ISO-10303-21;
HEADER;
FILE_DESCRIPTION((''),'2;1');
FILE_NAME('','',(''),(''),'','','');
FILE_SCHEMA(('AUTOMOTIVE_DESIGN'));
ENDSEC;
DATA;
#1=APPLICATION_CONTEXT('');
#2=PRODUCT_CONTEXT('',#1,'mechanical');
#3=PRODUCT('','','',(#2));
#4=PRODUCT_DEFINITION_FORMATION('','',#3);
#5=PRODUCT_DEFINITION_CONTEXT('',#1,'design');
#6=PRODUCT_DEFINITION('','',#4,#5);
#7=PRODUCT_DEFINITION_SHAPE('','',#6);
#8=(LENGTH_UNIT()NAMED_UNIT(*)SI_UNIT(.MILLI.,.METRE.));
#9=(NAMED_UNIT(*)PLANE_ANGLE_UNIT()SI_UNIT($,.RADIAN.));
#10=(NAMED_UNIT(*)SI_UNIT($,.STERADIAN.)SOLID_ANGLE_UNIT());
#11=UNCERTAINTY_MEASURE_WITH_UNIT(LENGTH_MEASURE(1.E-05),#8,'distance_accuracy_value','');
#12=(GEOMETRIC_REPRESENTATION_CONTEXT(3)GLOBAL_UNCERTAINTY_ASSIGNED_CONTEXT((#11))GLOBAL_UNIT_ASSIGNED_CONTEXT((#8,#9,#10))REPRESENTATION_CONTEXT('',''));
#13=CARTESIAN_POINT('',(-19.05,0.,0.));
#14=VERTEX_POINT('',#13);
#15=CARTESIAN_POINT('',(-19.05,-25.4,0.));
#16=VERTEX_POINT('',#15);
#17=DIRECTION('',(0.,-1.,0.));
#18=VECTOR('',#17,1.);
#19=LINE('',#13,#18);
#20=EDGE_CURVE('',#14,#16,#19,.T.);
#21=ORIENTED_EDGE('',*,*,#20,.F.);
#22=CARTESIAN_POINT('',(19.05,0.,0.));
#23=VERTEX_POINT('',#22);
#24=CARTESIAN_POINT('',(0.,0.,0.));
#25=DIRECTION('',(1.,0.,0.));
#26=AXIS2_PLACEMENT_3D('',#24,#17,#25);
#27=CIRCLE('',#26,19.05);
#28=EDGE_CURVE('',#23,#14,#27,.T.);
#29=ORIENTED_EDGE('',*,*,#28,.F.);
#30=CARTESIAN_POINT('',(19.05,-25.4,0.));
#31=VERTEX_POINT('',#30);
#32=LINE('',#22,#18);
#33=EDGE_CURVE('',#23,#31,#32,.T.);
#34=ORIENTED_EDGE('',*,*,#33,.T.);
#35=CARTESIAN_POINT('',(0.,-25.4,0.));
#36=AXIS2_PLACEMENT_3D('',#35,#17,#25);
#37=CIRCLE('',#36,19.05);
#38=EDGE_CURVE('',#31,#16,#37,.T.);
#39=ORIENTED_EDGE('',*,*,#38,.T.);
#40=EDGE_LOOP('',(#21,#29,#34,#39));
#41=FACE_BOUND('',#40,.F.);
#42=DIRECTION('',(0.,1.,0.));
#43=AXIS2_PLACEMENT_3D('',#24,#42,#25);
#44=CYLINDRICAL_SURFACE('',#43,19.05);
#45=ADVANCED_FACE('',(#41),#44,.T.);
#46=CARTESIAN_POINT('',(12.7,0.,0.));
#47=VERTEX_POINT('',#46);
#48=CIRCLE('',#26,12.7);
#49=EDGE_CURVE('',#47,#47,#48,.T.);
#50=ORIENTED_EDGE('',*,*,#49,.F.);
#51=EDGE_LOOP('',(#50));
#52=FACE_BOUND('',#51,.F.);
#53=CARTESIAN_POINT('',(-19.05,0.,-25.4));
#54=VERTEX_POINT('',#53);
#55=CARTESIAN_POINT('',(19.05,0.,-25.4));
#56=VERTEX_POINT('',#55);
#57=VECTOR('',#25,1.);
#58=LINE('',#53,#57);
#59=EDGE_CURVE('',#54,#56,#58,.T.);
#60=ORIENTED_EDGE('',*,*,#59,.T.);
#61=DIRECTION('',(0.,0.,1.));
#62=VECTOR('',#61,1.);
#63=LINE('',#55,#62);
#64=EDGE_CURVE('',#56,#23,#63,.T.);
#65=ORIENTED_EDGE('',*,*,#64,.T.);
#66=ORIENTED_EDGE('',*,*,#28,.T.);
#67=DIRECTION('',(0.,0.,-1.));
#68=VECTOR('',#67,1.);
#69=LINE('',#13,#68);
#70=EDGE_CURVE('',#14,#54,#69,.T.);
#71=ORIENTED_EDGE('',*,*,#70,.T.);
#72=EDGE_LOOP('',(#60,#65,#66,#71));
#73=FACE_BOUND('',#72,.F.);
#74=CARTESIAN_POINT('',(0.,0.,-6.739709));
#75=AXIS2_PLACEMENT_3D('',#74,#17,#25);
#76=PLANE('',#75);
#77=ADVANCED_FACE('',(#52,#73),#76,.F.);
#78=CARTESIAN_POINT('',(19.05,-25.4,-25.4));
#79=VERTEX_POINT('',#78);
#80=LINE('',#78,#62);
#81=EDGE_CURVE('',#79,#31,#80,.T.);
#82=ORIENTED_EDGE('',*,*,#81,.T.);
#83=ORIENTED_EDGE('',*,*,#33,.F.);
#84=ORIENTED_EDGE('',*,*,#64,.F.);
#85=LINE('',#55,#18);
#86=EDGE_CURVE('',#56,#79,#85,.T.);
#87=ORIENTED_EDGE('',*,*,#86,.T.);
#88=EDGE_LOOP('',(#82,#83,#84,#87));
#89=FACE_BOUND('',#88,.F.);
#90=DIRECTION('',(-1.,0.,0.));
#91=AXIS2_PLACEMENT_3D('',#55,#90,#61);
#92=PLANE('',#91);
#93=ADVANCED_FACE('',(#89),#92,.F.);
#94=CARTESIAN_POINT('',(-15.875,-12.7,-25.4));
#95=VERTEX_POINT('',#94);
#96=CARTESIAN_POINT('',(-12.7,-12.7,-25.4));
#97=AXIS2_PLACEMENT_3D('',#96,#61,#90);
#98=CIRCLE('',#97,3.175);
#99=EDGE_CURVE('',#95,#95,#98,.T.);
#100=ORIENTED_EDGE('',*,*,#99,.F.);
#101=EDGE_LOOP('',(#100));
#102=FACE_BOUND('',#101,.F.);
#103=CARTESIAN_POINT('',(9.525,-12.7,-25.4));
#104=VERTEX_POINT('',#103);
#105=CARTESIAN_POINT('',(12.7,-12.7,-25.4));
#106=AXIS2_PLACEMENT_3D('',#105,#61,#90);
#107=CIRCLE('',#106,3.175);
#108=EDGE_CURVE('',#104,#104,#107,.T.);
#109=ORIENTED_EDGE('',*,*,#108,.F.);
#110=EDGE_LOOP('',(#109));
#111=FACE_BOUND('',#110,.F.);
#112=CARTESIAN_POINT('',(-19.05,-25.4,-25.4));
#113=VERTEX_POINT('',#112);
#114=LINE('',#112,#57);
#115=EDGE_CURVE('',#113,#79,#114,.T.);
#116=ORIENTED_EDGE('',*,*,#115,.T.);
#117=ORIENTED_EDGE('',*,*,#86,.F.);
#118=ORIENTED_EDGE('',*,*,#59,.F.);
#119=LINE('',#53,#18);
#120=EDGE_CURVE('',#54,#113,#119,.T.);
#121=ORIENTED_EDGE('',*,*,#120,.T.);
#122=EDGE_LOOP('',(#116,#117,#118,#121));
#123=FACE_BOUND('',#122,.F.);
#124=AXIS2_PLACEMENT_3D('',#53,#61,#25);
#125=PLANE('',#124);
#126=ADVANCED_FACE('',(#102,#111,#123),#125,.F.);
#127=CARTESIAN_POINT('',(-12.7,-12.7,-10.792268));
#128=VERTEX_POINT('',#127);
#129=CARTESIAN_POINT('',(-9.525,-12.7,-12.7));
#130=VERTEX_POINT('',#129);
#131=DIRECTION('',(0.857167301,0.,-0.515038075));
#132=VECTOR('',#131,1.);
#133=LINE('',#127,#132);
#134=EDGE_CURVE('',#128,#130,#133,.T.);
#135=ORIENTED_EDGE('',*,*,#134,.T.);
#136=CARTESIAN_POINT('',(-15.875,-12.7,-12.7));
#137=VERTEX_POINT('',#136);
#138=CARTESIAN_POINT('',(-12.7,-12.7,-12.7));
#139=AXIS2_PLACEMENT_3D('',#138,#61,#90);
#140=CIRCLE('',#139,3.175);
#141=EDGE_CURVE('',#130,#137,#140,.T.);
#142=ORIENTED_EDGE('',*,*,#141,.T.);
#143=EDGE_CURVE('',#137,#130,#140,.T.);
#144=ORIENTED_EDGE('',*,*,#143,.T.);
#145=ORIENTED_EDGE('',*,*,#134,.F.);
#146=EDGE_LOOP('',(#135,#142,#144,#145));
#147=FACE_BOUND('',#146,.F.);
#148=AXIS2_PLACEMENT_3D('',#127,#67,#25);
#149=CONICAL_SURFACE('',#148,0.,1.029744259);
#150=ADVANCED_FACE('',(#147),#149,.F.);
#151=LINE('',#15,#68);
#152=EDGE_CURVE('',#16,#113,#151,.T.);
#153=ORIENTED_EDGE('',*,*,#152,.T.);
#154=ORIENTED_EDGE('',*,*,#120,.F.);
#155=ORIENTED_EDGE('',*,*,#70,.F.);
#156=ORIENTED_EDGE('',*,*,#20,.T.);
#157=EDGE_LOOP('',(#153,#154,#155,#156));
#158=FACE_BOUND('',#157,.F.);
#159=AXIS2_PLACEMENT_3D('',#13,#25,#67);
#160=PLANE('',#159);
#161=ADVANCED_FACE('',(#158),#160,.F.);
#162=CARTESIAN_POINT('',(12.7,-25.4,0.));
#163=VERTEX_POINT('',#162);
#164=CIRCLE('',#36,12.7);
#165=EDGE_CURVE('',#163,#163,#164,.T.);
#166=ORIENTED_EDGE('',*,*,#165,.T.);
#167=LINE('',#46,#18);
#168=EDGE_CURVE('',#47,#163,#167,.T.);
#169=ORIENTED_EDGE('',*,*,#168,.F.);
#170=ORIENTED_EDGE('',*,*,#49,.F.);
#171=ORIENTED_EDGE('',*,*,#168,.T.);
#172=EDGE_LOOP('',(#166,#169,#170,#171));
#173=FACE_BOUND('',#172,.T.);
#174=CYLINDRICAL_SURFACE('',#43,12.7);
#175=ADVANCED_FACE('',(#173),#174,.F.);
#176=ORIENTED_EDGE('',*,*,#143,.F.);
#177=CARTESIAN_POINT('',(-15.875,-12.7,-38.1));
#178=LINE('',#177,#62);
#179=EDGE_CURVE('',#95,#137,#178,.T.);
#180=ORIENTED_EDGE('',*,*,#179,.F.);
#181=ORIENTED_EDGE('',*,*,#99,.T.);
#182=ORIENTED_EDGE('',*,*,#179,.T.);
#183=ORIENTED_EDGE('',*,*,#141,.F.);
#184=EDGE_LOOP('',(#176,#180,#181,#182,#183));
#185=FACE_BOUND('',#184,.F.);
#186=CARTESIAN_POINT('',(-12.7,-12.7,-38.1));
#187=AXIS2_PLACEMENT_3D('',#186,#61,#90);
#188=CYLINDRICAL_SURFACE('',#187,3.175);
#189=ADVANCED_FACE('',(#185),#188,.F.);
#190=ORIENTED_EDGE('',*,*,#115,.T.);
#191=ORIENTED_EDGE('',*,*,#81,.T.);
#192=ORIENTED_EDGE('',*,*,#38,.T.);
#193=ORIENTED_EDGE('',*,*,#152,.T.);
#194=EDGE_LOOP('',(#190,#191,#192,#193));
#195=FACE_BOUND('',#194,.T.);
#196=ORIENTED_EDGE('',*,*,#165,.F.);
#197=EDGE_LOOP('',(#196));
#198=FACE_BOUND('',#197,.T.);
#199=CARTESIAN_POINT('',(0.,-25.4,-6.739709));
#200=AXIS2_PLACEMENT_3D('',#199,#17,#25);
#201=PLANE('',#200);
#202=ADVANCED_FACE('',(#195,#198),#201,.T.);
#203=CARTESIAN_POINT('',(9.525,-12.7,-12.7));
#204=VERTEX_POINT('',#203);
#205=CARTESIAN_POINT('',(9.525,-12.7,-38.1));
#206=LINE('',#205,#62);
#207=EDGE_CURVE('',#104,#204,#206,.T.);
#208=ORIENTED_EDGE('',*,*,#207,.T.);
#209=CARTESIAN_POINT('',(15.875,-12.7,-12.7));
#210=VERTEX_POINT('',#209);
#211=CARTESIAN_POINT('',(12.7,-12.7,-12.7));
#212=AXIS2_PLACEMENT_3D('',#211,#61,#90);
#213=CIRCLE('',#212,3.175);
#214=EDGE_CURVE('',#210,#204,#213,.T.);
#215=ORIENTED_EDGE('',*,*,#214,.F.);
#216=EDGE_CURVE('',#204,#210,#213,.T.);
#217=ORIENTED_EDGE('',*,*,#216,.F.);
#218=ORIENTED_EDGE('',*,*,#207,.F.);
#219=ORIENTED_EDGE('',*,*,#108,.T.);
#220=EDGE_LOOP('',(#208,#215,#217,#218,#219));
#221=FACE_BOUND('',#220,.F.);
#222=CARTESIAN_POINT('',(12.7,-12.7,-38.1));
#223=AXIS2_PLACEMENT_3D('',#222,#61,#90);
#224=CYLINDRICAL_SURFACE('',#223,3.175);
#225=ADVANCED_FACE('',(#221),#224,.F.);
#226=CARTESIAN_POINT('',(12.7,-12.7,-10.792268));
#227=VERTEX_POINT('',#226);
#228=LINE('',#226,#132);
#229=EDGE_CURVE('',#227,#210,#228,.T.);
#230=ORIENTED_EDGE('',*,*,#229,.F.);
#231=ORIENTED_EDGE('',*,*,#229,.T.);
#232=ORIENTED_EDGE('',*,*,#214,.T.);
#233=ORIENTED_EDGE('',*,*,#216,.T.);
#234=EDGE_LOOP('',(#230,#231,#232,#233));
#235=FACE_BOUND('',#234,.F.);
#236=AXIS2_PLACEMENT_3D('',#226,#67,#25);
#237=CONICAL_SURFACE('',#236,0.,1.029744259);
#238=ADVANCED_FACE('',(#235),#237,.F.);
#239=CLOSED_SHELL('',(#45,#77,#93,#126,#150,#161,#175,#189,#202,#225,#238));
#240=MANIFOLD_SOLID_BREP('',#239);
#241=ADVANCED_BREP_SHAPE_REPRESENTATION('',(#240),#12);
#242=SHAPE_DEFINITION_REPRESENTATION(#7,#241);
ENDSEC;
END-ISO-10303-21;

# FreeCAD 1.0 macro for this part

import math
import FreeCAD as App
import Part
import Sketcher
Q = App.Units.Quantity

doc = App.newDocument("Part")
params = doc.addObject("Spreadsheet::Sheet", "Params")
for row, (alias, value) in enumerate([
    ("sketch1_diameter", "1 in"),
    ("sketch1_height", "1 in"),
    ("sketch1_radius", "0.75 in"),
    ("pad1_length", "1 in"),
    ("sketch2_diameter", "0.25 in"),
    ("hole_diameter", "0.25 in"),
    ("hole_depth", "0.5 in"),
], start=1):
    params.set(f"A{row}", alias)
    params.set(f"B{row}", "=" + value)
    params.setAlias(f"B{row}", alias)

body = doc.addObject("PartDesign::Body", "Body")

# Sketch on XZ plane
sketch1 = body.newObject("Sketcher::SketchObject", "Sketch")
sketch1.AttachmentSupport = (doc.getObject("XZ_Plane"), [""])
sketch1.MapMode = "FlatFace"
sketch1.addGeometry([
    Part.LineSegment(App.Vector(19, -25, 0), App.Vector(19, 0, 0)),  # 0
    Part.ArcOfCircle(Part.Circle(App.Vector(0, 0, 0), App.Vector(0, 0, 1), 19), math.radians(0), math.radians(180)),  # 1
    Part.LineSegment(App.Vector(-19, 0, 0), App.Vector(-19, -25, 0)),  # 2
    Part.LineSegment(App.Vector(-19, -25, 0), App.Vector(19, -25, 0)),  # 3
    Part.Circle(App.Vector(0, 0, 0), App.Vector(0, 0, 1), 13),  # 4
], False)
sketch1.addConstraint([
    Sketcher.Constraint("Tangent", 0, 2, 1, 1),
    Sketcher.Constraint("Tangent", 1, 2, 2, 1),
    Sketcher.Constraint("Coincident", 2, 2, 3, 1),
    Sketcher.Constraint("Coincident", 3, 2, 0, 1),
    Sketcher.Constraint("Vertical", 0),
    Sketcher.Constraint("Vertical", 2),
    Sketcher.Constraint("Horizontal", 3),
    Sketcher.Constraint("Coincident", 1, 3, -1, 1),
    Sketcher.Constraint("Coincident", 4, 3, -1, 1),
    Sketcher.Constraint("Diameter", 4, Q("1 in")),
    Sketcher.Constraint("DistanceY", 0, 1, 0, 2, Q("1 in")),
    Sketcher.Constraint("Radius", 1, Q("0.75 in")),
])
sketch1.setExpression("Constraints[9]", "Params.sketch1_diameter")
sketch1.setExpression("Constraints[10]", "Params.sketch1_height")
sketch1.setExpression("Constraints[11]", "Params.sketch1_radius")
pad1 = body.newObject("PartDesign::Pad", "Pad")
pad1.Profile = sketch1
pad1.setExpression("Length", "Params.pad1_length")

# Sketch on XY plane
sketch2 = body.newObject("Sketcher::SketchObject", "Sketch001")
sketch2.AttachmentSupport = (doc.getObject("XY_Plane"), [""])
sketch2.MapMode = "FlatFace"
sketch2.AttachmentOffset = App.Placement(App.Vector(0, 0, -1 * 25.4), App.Rotation())
sketch2.addGeometry([
    Part.Circle(App.Vector(-12.7, -12.7, 0), App.Vector(0, 0, 1), 3.2),
    Part.Circle(App.Vector(12.7, -12.7, 0), App.Vector(0, 0, 1), 3.2),
], False)
sketch2.addConstraint([
    Sketcher.Constraint("Equal", 0, 1),
    Sketcher.Constraint("Symmetric", 0, 3, 1, 3, -2),
    Sketcher.Constraint("Diameter", 0, Q("0.25 in")),
    Sketcher.Constraint("DistanceX", 0, 3, 1, 3, Q("1 in")),
    Sketcher.Constraint("DistanceY", 0, 3, -1, 1, Q("0.5 in")),
])
sketch2.setExpression("Constraints[2]", "Params.sketch2_diameter")
doc.recompute()
hole = body.newObject("PartDesign::Hole", "Hole")
hole.Profile = sketch2
hole.ThreadType = "None"
hole.setExpression("Diameter", "Params.hole_diameter")
hole.DepthType = "Dimension"
hole.setExpression("Depth", "Params.hole_depth")
hole.DrillPoint = "Angled"
hole.DrillPointAngle = 118
hole.Reversed = True

doc.recompute()
